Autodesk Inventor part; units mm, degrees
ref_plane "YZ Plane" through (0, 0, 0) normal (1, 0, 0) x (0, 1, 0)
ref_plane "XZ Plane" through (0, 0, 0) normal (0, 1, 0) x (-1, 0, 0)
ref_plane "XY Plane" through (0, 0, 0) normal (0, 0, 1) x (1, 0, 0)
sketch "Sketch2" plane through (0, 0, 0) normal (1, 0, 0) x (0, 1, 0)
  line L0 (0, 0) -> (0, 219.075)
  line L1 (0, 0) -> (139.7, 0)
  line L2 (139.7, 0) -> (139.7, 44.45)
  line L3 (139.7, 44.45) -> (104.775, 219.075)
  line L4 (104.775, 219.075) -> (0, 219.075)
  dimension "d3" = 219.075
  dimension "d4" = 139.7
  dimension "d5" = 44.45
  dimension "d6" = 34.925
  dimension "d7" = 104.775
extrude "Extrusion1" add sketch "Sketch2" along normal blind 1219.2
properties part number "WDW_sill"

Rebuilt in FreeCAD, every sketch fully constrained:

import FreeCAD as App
import Part
import Sketcher

V = App.Vector
Q = App.Units.Quantity

doc = App.newDocument("Part")
params = doc.addObject("Spreadsheet::Sheet", "Params")
for row, (alias, value) in enumerate([
    ("sketch1_width", "5.5 in"),
    ("sketch1_height", "1.75 in"),
    ("sketch1_width2", "4.125 in"),
    ("sketch1_height2", "8.625 in"),
    ("pad1_length", "48 in"),
], start=1):
    params.set(f"A{row}", alias)
    params.set(f"B{row}", "=" + value)
    params.setAlias(f"B{row}", alias)

body = doc.addObject("PartDesign::Body", "Body")

# Sketch on YZ plane
sketch1 = body.newObject("Sketcher::SketchObject", "Sketch")
sketch1.AttachmentSupport = (doc.getObject("YZ_Plane"), [""])
sketch1.MapMode = "FlatFace"
sketch1.addGeometry(Part.LineSegment(V(0, 219.075, 0), V(0, 0, 0)), False)
sketch1.addGeometry(Part.LineSegment(V(0, 0, 0), V(139.7, 0, 0)), False)
sketch1.addGeometry(Part.LineSegment(V(139.7, 0, 0), V(139.7, 44.45, 0)), False)
sketch1.addGeometry(Part.LineSegment(V(139.7, 44.45, 0), V(104.775, 219.075, 0)), False)
sketch1.addGeometry(Part.LineSegment(V(104.775, 219.075, 0), V(0, 219.075, 0)), False)
sketch1.addConstraint(Sketcher.Constraint("Coincident", 0, 2, 1, 1))
sketch1.addConstraint(Sketcher.Constraint("Coincident", 1, 2, 2, 1))
sketch1.addConstraint(Sketcher.Constraint("Coincident", 2, 2, 3, 1))
sketch1.addConstraint(Sketcher.Constraint("Coincident", 3, 2, 4, 1))
sketch1.addConstraint(Sketcher.Constraint("Coincident", 4, 2, 0, 1))
sketch1.addConstraint(Sketcher.Constraint("Vertical", 0))
sketch1.addConstraint(Sketcher.Constraint("Horizontal", 1))
sketch1.addConstraint(Sketcher.Constraint("Vertical", 2))
sketch1.addConstraint(Sketcher.Constraint("Horizontal", 4))
sketch1.addConstraint(Sketcher.Constraint("Coincident", 0, 2, -1, 1))
sketch1.addConstraint(Sketcher.Constraint("DistanceX", 1, 1, 1, 2, Q("5.5 in")))
sketch1.addConstraint(Sketcher.Constraint("DistanceY", 2, 1, 2, 2, Q("1.75 in")))
sketch1.addConstraint(Sketcher.Constraint("DistanceX", 4, 2, 4, 1, Q("4.125 in")))
sketch1.addConstraint(Sketcher.Constraint("DistanceY", 0, 2, 0, 1, Q("8.625 in")))
sketch1.setExpression("Constraints[10]", "Params.sketch1_width")
sketch1.setExpression("Constraints[11]", "Params.sketch1_height")
sketch1.setExpression("Constraints[12]", "Params.sketch1_width2")
sketch1.setExpression("Constraints[13]", "Params.sketch1_height2")
pad1 = body.newObject("PartDesign::Pad", "Pad")
pad1.Profile = sketch1
pad1.setExpression("Length", "Params.pad1_length")

doc.recompute()
